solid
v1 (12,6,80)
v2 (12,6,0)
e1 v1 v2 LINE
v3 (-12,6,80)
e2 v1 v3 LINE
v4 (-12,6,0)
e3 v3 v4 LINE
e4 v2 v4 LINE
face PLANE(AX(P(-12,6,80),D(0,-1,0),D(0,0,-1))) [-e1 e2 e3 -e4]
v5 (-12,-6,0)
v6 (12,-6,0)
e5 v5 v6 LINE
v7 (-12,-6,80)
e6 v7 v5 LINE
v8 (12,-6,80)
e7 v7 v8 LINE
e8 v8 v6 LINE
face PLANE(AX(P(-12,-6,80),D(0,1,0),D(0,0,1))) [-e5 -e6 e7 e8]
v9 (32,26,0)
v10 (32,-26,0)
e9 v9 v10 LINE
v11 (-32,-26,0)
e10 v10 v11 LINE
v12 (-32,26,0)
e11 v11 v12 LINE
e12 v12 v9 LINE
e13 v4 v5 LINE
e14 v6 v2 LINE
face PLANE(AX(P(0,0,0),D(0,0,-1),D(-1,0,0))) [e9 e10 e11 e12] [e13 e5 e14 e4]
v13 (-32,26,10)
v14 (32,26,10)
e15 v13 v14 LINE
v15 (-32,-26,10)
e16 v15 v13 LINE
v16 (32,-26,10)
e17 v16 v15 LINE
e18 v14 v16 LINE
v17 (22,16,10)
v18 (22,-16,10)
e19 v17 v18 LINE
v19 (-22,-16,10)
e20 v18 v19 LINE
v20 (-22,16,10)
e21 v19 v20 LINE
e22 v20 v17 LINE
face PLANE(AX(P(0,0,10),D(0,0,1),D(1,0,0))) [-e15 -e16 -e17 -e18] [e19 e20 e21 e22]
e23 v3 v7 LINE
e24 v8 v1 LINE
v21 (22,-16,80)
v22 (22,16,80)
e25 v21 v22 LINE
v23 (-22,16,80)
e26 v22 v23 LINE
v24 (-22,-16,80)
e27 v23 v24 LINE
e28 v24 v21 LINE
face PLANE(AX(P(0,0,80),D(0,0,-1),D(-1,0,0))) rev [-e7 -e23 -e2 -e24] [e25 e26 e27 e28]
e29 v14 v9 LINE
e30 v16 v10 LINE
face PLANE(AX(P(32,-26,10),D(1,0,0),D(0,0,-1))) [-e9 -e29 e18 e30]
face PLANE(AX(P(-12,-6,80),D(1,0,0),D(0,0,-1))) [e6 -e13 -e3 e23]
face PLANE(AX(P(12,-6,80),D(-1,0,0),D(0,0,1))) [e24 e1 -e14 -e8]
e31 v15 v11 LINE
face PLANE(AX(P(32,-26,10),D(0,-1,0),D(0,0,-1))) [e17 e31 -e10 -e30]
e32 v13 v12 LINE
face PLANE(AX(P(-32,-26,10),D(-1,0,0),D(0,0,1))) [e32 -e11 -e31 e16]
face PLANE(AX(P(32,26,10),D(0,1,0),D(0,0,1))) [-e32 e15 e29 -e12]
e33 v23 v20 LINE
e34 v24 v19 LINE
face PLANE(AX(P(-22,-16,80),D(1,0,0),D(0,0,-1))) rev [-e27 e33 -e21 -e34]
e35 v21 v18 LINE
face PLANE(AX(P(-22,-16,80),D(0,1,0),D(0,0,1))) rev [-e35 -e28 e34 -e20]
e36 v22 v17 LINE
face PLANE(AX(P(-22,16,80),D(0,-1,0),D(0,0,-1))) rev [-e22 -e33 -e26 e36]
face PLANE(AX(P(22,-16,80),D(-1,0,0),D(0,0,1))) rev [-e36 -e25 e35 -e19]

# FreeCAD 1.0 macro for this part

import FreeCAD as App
import Part
import Sketcher


def add_polygon(sketch, points):
    """Adds a closed chain of lines whose ends are joined by coincident constraints."""
    first, n = sketch.GeometryCount, len(points)
    for a, b in zip(points, points[1:] + points[:1]):
        sketch.addGeometry(Part.LineSegment(App.Vector(*a, 0), App.Vector(*b, 0)), False)
    for i in range(n):
        sketch.addConstraint(Sketcher.Constraint("Coincident", first + i, 2, first + (i + 1) % n, 1))

doc = App.newDocument("Part")
body = doc.addObject("PartDesign::Body", "Body")

sketch1 = body.newObject("Sketcher::SketchObject", "Sketch")
sketch1.AttachmentSupport = (doc.getObject("XY_Plane"), [""])
sketch1.MapMode = "FlatFace"
add_polygon(sketch1, [(-22, 16), (-22, -16), (22, -16), (22, 16)])
add_polygon(sketch1, [(12, -6), (-12, -6), (-12, 6), (12, 6)])
sketch1.addConstraint([
    Sketcher.Constraint("Vertical", 0),
    Sketcher.Constraint("Horizontal", 1),
    Sketcher.Constraint("Vertical", 2),
    Sketcher.Constraint("Horizontal", 3),
    Sketcher.Constraint("Horizontal", 4),
    Sketcher.Constraint("Vertical", 5),
    Sketcher.Constraint("Horizontal", 6),
    Sketcher.Constraint("Vertical", 7),
    Sketcher.Constraint("Symmetric", 0, 2, 2, 2, -1, 1),
    Sketcher.Constraint("Symmetric", 4, 2, 6, 2, -1, 1),
    Sketcher.Constraint("DistanceX", 1, 1, 1, 2, 44.0),
    Sketcher.Constraint("DistanceX", 4, 2, 4, 1, 24.0),
    Sketcher.Constraint("DistanceY", 0, 2, 0, 1, 32.0),
    Sketcher.Constraint("DistanceY", 5, 1, 5, 2, 12.0),
])
pad1 = body.newObject("PartDesign::Pad", "Pad")
pad1.Profile = sketch1
pad1.Length = 80

sketch2 = body.newObject("Sketcher::SketchObject", "Sketch001")
sketch2.AttachmentSupport = (doc.getObject("XY_Plane"), [""])
sketch2.MapMode = "FlatFace"
add_polygon(sketch2, [(32, 26), (32, -26), (-32, -26), (-32, 26)])
add_polygon(sketch2, [(-22, -16), (22, -16), (22, 16), (-22, 16)])
sketch2.addConstraint([
    Sketcher.Constraint("Vertical", 0),
    Sketcher.Constraint("Horizontal", 1),
    Sketcher.Constraint("Vertical", 2),
    Sketcher.Constraint("Horizontal", 3),
    Sketcher.Constraint("Horizontal", 4),
    Sketcher.Constraint("Vertical", 5),
    Sketcher.Constraint("Horizontal", 6),
    Sketcher.Constraint("Vertical", 7),
    Sketcher.Constraint("Symmetric", 0, 2, 2, 2, -1, 1),
    Sketcher.Constraint("Symmetric", 4, 2, 6, 2, -1, 1),
    Sketcher.Constraint("DistanceX", 1, 2, 1, 1, 64.0),
    Sketcher.Constraint("DistanceX", 4, 1, 4, 2, 44.0),
    Sketcher.Constraint("DistanceY", 0, 2, 0, 1, 52.0),
    Sketcher.Constraint("DistanceY", 5, 1, 5, 2, 32.0),
])
pad2 = body.newObject("PartDesign::Pad", "Pad001")
pad2.Profile = sketch2
pad2.Length = 10

doc.recompute()
